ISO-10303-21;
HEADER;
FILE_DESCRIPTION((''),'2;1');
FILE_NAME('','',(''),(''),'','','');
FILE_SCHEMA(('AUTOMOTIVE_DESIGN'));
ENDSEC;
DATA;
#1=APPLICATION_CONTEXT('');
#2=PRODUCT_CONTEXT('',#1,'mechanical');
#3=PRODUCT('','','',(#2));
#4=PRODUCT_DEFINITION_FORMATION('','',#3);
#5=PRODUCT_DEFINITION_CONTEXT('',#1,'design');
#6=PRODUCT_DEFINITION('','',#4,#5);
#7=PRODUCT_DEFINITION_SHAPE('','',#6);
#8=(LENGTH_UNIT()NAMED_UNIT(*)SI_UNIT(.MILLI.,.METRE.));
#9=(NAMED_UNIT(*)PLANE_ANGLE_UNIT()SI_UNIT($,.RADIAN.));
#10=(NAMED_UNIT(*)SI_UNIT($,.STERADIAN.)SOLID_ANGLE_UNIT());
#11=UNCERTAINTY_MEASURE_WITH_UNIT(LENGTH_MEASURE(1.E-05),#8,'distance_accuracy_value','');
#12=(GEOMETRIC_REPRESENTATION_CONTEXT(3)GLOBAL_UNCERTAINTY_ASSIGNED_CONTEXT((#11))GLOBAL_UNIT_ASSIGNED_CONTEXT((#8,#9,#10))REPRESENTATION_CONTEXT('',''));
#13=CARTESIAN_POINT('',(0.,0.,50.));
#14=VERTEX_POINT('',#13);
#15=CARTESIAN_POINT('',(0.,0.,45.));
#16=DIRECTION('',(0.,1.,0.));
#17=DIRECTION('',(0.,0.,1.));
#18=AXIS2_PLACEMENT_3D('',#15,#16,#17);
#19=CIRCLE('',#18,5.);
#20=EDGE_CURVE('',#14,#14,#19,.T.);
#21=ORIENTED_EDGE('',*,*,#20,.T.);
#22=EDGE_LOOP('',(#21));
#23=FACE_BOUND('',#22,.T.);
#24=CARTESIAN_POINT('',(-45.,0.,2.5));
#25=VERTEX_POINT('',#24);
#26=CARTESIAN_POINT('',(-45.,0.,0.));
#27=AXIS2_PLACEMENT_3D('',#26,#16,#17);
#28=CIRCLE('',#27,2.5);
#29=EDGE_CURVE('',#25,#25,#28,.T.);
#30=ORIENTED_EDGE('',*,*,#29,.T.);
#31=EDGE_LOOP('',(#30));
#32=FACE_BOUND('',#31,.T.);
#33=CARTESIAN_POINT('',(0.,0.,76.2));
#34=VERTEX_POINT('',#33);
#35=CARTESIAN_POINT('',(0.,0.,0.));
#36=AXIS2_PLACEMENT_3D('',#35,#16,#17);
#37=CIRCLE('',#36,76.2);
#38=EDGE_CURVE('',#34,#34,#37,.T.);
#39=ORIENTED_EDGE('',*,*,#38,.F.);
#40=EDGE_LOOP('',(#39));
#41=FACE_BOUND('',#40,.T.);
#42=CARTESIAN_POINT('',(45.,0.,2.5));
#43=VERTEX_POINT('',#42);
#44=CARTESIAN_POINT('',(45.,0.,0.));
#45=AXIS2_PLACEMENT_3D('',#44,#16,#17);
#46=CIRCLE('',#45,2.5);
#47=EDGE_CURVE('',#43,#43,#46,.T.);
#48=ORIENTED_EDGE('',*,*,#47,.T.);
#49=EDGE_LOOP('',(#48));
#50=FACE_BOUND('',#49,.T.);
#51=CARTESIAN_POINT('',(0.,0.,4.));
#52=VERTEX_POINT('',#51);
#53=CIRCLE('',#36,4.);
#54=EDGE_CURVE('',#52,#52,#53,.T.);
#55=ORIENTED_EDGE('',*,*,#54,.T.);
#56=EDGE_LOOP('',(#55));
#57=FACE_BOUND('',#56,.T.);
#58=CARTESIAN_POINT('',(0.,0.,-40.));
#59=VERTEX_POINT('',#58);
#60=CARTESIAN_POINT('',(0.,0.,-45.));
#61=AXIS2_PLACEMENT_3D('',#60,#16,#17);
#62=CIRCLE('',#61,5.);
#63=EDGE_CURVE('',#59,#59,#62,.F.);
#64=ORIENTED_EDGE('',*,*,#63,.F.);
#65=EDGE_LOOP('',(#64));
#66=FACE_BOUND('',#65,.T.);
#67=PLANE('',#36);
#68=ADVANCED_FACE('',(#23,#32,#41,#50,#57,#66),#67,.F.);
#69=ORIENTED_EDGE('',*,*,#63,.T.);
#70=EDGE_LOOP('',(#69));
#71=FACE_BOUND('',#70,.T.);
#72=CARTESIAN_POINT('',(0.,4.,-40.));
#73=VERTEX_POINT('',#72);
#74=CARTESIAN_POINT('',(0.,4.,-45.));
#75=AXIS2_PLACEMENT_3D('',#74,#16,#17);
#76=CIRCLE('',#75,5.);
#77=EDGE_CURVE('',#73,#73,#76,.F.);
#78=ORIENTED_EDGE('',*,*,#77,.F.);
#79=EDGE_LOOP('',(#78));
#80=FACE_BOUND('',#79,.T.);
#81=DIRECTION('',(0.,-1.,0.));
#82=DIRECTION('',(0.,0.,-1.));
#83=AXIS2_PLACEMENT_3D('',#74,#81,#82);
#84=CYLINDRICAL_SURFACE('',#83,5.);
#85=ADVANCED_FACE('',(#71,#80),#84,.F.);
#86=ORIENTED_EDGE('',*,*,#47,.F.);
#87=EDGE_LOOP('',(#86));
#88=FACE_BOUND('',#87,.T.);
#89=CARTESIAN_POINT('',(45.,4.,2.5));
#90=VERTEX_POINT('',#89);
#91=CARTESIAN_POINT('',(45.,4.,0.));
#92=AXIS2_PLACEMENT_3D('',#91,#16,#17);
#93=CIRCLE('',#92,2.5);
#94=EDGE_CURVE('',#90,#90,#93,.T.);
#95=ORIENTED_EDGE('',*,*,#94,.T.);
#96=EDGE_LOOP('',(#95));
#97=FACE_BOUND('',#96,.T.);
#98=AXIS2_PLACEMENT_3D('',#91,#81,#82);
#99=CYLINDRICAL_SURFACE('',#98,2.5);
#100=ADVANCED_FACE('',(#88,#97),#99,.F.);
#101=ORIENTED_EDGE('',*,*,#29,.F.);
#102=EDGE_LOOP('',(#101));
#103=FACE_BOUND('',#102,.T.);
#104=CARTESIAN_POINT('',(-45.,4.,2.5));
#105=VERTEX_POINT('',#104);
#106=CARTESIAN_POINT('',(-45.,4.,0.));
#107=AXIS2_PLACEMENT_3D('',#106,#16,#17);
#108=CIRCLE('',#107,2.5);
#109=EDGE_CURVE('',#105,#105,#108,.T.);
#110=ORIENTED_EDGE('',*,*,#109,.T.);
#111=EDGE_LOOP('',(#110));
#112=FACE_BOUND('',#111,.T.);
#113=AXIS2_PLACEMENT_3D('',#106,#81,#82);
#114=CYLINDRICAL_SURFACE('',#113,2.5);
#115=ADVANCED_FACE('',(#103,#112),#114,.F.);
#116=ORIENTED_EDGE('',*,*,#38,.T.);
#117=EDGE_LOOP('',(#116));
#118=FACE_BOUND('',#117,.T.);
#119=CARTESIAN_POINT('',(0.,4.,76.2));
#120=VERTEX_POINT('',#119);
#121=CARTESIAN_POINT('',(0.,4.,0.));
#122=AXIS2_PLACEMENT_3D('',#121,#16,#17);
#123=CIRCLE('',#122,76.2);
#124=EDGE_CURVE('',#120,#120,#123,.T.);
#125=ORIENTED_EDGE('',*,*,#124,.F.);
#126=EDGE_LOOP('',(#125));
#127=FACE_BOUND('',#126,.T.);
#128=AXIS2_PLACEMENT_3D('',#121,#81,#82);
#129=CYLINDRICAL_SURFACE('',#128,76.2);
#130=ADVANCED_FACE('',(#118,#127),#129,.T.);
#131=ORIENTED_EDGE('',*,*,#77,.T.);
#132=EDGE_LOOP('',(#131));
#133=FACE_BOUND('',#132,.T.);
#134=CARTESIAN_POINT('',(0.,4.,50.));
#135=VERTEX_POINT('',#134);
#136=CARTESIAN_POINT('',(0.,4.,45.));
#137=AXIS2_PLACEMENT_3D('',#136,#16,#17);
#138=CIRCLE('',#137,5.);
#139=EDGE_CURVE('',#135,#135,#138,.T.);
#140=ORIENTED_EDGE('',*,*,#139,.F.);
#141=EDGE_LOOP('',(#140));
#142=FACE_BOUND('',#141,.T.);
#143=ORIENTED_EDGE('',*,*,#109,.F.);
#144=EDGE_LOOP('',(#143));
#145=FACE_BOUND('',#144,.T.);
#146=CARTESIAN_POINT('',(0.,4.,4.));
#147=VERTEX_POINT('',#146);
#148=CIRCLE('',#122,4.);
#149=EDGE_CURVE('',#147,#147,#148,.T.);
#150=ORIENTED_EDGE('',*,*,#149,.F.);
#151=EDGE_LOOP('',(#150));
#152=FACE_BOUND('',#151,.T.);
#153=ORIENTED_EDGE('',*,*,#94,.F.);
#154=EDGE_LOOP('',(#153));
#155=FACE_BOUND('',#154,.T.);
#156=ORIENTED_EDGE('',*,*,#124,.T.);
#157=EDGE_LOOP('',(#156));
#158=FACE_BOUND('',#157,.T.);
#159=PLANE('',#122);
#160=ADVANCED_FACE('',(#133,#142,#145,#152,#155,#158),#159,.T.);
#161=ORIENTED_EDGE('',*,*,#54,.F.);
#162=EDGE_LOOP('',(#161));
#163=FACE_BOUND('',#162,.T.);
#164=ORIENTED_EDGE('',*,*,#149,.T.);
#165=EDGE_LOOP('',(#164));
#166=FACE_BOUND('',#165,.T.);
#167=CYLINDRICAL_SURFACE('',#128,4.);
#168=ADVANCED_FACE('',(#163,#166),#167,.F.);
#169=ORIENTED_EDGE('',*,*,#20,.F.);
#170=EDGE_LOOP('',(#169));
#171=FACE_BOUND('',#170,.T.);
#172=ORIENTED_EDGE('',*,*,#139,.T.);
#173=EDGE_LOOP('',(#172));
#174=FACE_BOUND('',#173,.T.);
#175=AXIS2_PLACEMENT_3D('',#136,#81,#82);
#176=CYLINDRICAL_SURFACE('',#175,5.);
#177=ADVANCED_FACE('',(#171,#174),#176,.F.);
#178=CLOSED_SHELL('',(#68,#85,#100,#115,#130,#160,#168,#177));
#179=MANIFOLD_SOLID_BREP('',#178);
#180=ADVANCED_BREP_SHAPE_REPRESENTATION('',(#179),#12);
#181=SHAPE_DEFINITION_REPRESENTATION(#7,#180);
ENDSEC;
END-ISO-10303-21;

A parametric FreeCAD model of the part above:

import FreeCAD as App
import Part
import Sketcher
from FreeCAD import Vector
Q = App.Units.Quantity

doc = App.newDocument("Part")
body = doc.addObject("PartDesign::Body", "Body")

sketch1 = doc.addObject("Sketcher::SketchObject", "Sketch")
body.addObject(sketch1)
sketch1.AttachmentSupport = (doc.XZ_Plane, [""])
sketch1.MapMode = "FlatFace"
sketch1.addGeometry([
    Part.Circle(Vector(0, 0, 0), Vector(0, 0, 1), 76.2),
    Part.Circle(Vector(0, -45, 0), Vector(0, 0, 1), 5),
    Part.Circle(Vector(-45, 0, 0), Vector(0, 0, 1), 2.5),
    Part.Circle(Vector(45, 0, 0), Vector(0, 0, 1), 2.5),
    Part.Circle(Vector(0, 0, 0), Vector(0, 0, 1), 4),
    Part.Circle(Vector(0, 45, 0), Vector(0, 0, 1), 5),
], False)
sketch1.addConstraint([
    Sketcher.Constraint("Coincident", 0, 3, -1, 1),
    Sketcher.Constraint("Coincident", 4, 3, -1, 1),
    Sketcher.Constraint("Equal", 2, 3),
    Sketcher.Constraint("Equal", 1, 5),
    Sketcher.Constraint("Symmetric", 2, 3, 3, 3, -1, 1),
    Sketcher.Constraint("Symmetric", 1, 3, 5, 3, -1, 1),
    Sketcher.Constraint("PointOnObject", 1, 3, -2),
    Sketcher.Constraint("PointOnObject", 2, 3, -1),
    Sketcher.Constraint("Diameter", 1, Q("10 mm")),
    Sketcher.Constraint("Diameter", 2, Q("5 mm")),
    Sketcher.Constraint("Diameter", 4, Q("8 mm")),
    Sketcher.Constraint("Diameter", 0, Q("152.4 mm")),
    Sketcher.Constraint("DistanceY", 1, 3, -1, 1, Q("45 mm")),
    Sketcher.Constraint("DistanceX", 2, 3, -1, 1, Q("45 mm")),
])
pad1 = doc.addObject("PartDesign::Pad", "Pad")
body.addObject(pad1)
pad1.Profile = sketch1
pad1.Length = 4
pad1.Reversed = True

doc.recompute()
